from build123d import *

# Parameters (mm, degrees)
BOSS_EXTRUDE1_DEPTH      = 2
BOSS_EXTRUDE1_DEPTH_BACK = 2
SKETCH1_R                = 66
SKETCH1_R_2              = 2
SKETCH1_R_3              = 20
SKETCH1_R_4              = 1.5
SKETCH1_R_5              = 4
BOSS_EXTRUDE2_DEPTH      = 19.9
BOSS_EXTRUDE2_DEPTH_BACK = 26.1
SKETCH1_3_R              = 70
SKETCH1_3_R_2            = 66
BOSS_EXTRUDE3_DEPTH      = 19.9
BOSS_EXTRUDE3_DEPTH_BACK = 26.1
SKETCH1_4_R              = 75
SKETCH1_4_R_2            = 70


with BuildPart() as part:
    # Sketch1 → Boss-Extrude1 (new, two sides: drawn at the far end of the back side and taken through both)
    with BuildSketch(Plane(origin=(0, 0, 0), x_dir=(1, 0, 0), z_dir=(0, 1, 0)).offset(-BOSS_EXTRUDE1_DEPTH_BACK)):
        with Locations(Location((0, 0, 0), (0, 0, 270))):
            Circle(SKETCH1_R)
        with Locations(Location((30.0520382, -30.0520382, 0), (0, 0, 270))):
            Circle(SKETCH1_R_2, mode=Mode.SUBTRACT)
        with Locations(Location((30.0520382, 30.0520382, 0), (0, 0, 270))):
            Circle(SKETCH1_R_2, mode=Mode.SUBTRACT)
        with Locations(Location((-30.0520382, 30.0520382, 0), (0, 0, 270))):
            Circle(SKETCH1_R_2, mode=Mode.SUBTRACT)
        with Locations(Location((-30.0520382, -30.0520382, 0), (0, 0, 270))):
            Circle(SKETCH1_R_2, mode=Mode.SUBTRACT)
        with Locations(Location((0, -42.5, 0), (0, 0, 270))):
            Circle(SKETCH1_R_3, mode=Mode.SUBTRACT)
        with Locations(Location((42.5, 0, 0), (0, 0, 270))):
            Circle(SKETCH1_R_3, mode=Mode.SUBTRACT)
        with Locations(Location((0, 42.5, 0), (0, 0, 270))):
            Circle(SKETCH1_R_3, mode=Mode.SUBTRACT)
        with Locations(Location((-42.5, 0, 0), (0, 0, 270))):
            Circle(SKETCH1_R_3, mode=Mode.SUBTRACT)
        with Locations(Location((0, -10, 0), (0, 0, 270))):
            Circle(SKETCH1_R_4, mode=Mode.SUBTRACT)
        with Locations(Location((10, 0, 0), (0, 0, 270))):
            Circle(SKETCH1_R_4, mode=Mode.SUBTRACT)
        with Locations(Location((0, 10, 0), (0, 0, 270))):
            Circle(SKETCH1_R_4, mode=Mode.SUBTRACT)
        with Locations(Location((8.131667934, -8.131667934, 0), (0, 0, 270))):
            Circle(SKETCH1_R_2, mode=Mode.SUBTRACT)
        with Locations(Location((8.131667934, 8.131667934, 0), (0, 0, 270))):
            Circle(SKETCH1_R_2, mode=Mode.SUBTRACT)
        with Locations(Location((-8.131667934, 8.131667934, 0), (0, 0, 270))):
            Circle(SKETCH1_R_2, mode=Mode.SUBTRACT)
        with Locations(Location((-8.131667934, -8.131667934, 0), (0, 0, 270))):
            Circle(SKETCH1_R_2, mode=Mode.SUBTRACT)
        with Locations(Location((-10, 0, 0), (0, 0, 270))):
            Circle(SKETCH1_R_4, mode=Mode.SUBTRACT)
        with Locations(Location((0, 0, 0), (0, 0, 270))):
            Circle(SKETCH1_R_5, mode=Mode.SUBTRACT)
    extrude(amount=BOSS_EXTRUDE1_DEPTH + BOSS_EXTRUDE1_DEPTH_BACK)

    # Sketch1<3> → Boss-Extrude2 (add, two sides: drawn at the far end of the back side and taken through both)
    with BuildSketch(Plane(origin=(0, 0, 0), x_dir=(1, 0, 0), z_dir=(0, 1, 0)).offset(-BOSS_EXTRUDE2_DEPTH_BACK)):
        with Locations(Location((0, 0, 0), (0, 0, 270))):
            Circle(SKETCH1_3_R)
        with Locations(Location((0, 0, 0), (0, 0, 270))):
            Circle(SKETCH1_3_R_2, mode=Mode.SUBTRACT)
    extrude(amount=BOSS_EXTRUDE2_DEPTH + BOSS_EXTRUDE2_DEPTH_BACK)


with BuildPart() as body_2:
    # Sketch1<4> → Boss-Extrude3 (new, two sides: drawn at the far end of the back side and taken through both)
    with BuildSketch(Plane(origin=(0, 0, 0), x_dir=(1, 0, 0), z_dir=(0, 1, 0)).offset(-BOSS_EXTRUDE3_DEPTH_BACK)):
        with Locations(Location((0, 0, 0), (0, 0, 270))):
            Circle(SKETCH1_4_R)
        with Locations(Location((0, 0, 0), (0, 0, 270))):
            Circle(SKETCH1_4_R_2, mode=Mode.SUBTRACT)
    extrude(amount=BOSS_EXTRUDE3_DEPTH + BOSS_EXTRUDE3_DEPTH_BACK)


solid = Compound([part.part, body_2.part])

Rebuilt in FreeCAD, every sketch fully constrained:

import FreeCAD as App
import Part
import Sketcher
from FreeCAD import Vector
Q = App.Units.Quantity

doc = App.newDocument("Part")
body = doc.addObject("PartDesign::Body", "Body")

sketch1 = body.newObject("Sketcher::SketchObject", "Sketch")
sketch1.AttachmentSupport = (doc.getObject("XZ_Plane"), [""])
sketch1.MapMode = "FlatFace"
sketch1.addGeometry(Part.Circle(Vector(0, 0, 0), Vector(0, 0, 1), 66), False)
sketch1.addGeometry(Part.Circle(Vector(0, -42.5, 0), Vector(0, 0, 1), 20), False)
sketch1.addGeometry(Part.Circle(Vector(-30.1, -30.1, 0), Vector(0, 0, 1), 2), False)
sketch1.addGeometry(Part.Circle(Vector(-8.1, -8.1, 0), Vector(0, 0, 1), 2), False)
sketch1.addGeometry(Part.Circle(Vector(0, -10, 0), Vector(0, 0, 1), 1.5), False)
sketch1.addGeometry(Part.Circle(Vector(-42.5, 0, 0), Vector(0, 0, 1), 20), False)
sketch1.addGeometry(Part.Circle(Vector(-30.1, 30.1, 0), Vector(0, 0, 1), 2), False)
sketch1.addGeometry(Part.Circle(Vector(-10, 0, 0), Vector(0, 0, 1), 1.5), False)
sketch1.addGeometry(Part.Circle(Vector(-8.1, 8.1, 0), Vector(0, 0, 1), 2), False)
sketch1.addGeometry(Part.Circle(Vector(8.1, -8.1, 0), Vector(0, 0, 1), 2), False)
sketch1.addGeometry(Part.Circle(Vector(10, 0, 0), Vector(0, 0, 1), 1.5), False)
sketch1.addGeometry(Part.Circle(Vector(30.1, -30.1, 0), Vector(0, 0, 1), 2), False)
sketch1.addGeometry(Part.Circle(Vector(42.5, 0, 0), Vector(0, 0, 1), 20), False)
sketch1.addGeometry(Part.Circle(Vector(0, 0, 0), Vector(0, 0, 1), 4), False)
sketch1.addGeometry(Part.Circle(Vector(0, 10, 0), Vector(0, 0, 1), 1.5), False)
sketch1.addGeometry(Part.Circle(Vector(8.1, 8.1, 0), Vector(0, 0, 1), 2), False)
sketch1.addGeometry(Part.Circle(Vector(30.1, 30.1, 0), Vector(0, 0, 1), 2), False)
sketch1.addGeometry(Part.Circle(Vector(0, 42.5, 0), Vector(0, 0, 1), 20), False)
sketch1.addConstraint(Sketcher.Constraint("Coincident", 0, 3, -1, 1))
sketch1.addConstraint(Sketcher.Constraint("Coincident", 13, 3, -1, 1))
sketch1.addConstraint(Sketcher.Constraint("Equal", 2, 3))
sketch1.addConstraint(Sketcher.Constraint("Equal", 1, 5))
sketch1.addConstraint(Sketcher.Constraint("Equal", 3, 6))
sketch1.addConstraint(Sketcher.Constraint("Equal", 4, 7))
sketch1.addConstraint(Sketcher.Constraint("Equal", 6, 8))
sketch1.addConstraint(Sketcher.Constraint("Equal", 8, 9))
sketch1.addConstraint(Sketcher.Constraint("Equal", 7, 10))
sketch1.addConstraint(Sketcher.Constraint("Equal", 9, 11))
sketch1.addConstraint(Sketcher.Constraint("Equal", 5, 12))
sketch1.addConstraint(Sketcher.Constraint("Equal", 10, 14))
sketch1.addConstraint(Sketcher.Constraint("Equal", 11, 15))
sketch1.addConstraint(Sketcher.Constraint("Equal", 15, 16))
sketch1.addConstraint(Sketcher.Constraint("Equal", 12, 17))
sketch1.addConstraint(Sketcher.Constraint("Symmetric", 8, 3, 9, 3, -1, 1))
sketch1.addConstraint(Sketcher.Constraint("Symmetric", 7, 3, 10, 3, -1, 1))
sketch1.addConstraint(Sketcher.Constraint("Symmetric", 6, 3, 11, 3, -1, 1))
sketch1.addConstraint(Sketcher.Constraint("Symmetric", 5, 3, 12, 3, -1, 1))
sketch1.addConstraint(Sketcher.Constraint("Symmetric", 4, 3, 14, 3, -1, 1))
sketch1.addConstraint(Sketcher.Constraint("Symmetric", 3, 3, 15, 3, -1, 1))
sketch1.addConstraint(Sketcher.Constraint("Symmetric", 2, 3, 16, 3, -1, 1))
sketch1.addConstraint(Sketcher.Constraint("Symmetric", 1, 3, 17, 3, -1, 1))
sketch1.addConstraint(Sketcher.Constraint("Symmetric", 3, 3, 9, 3, -2))
sketch1.addConstraint(Sketcher.Constraint("Symmetric", 2, 3, 11, 3, -2))
sketch1.addConstraint(Sketcher.Constraint("PointOnObject", 1, 3, -2))
sketch1.addConstraint(Sketcher.Constraint("PointOnObject", 4, 3, -2))
sketch1.addConstraint(Sketcher.Constraint("PointOnObject", 5, 3, -1))
sketch1.addConstraint(Sketcher.Constraint("PointOnObject", 7, 3, -1))
sketch1.addConstraint(Sketcher.Constraint("Diameter", 0, Q("132 mm")))
sketch1.addConstraint(Sketcher.Constraint("Diameter", 1, Q("40 mm")))
sketch1.addConstraint(Sketcher.Constraint("Diameter", 2, Q("4 mm")))
sketch1.addConstraint(Sketcher.Constraint("Diameter", 4, Q("3 mm")))
sketch1.addConstraint(Sketcher.Constraint("Diameter", 13, Q("8 mm")))
sketch1.addConstraint(Sketcher.Constraint("DistanceY", 4, 3, -1, 1, Q("10 mm")))
sketch1.addConstraint(Sketcher.Constraint("DistanceX", 7, 3, -1, 1, Q("10 mm")))
sketch1.addConstraint(Sketcher.Constraint("DistanceY", 1, 3, -1, 1, Q("42.5 mm")))
sketch1.addConstraint(Sketcher.Constraint("DistanceX", 5, 3, -1, 1, Q("42.5 mm")))
sketch1.addConstraint(Sketcher.Constraint("DistanceX", 2, 3, -1, 1, Q("30.052038 mm")))
sketch1.addConstraint(Sketcher.Constraint("DistanceY", 2, 3, -1, 1, Q("30.052038 mm")))
sketch1.addConstraint(Sketcher.Constraint("DistanceX", 2, 3, 3, 3, Q("21.92037 mm")))
sketch1.addConstraint(Sketcher.Constraint("DistanceY", 2, 3, 3, 3, Q("21.92037 mm")))
pad1 = body.newObject("PartDesign::Pad", "Pad")
pad1.Profile = sketch1
pad1.Type = "TwoLengths"
pad1.Length = 2
pad1.Length2 = 2
pad1.Reversed = True

sketch2 = body.newObject("Sketcher::SketchObject", "Sketch001")
sketch2.AttachmentSupport = (doc.getObject("XZ_Plane"), [""])
sketch2.MapMode = "FlatFace"
sketch2.addGeometry(Part.Circle(Vector(0, 0, 0), Vector(0, 0, 1), 70), False)
sketch2.addGeometry(Part.Circle(Vector(0, 0, 0), Vector(0, 0, 1), 66), False)
sketch2.addConstraint(Sketcher.Constraint("Coincident", 0, 3, -1, 1))
sketch2.addConstraint(Sketcher.Constraint("Coincident", 1, 3, -1, 1))
sketch2.addConstraint(Sketcher.Constraint("Diameter", 0, Q("140 mm")))
sketch2.addConstraint(Sketcher.Constraint("Diameter", 1, Q("132 mm")))
pad2 = body.newObject("PartDesign::Pad", "Pad001")
pad2.Profile = sketch2
pad2.Type = "TwoLengths"
pad2.Length = 19.9
pad2.Length2 = 26.1
pad2.Reversed = True
body2 = doc.addObject("PartDesign::Body", "Body001")

sketch3 = body2.newObject("Sketcher::SketchObject", "Sketch002")
sketch3.AttachmentSupport = (doc.getObject("XZ_Plane001"), [""])
sketch3.MapMode = "FlatFace"
sketch3.addGeometry(Part.Circle(Vector(0, 0, 0), Vector(0, 0, 1), 75), False)
sketch3.addGeometry(Part.Circle(Vector(0, 0, 0), Vector(0, 0, 1), 70), False)
sketch3.addConstraint(Sketcher.Constraint("Coincident", 0, 3, -1, 1))
sketch3.addConstraint(Sketcher.Constraint("Coincident", 1, 3, -1, 1))
sketch3.addConstraint(Sketcher.Constraint("Diameter", 0, Q("150 mm")))
sketch3.addConstraint(Sketcher.Constraint("Diameter", 1, Q("140 mm")))
pad3 = body2.newObject("PartDesign::Pad", "Pad002")
pad3.Profile = sketch3
pad3.Type = "TwoLengths"
pad3.Length = 19.9
pad3.Length2 = 26.1
pad3.Reversed = True

doc.recompute()
